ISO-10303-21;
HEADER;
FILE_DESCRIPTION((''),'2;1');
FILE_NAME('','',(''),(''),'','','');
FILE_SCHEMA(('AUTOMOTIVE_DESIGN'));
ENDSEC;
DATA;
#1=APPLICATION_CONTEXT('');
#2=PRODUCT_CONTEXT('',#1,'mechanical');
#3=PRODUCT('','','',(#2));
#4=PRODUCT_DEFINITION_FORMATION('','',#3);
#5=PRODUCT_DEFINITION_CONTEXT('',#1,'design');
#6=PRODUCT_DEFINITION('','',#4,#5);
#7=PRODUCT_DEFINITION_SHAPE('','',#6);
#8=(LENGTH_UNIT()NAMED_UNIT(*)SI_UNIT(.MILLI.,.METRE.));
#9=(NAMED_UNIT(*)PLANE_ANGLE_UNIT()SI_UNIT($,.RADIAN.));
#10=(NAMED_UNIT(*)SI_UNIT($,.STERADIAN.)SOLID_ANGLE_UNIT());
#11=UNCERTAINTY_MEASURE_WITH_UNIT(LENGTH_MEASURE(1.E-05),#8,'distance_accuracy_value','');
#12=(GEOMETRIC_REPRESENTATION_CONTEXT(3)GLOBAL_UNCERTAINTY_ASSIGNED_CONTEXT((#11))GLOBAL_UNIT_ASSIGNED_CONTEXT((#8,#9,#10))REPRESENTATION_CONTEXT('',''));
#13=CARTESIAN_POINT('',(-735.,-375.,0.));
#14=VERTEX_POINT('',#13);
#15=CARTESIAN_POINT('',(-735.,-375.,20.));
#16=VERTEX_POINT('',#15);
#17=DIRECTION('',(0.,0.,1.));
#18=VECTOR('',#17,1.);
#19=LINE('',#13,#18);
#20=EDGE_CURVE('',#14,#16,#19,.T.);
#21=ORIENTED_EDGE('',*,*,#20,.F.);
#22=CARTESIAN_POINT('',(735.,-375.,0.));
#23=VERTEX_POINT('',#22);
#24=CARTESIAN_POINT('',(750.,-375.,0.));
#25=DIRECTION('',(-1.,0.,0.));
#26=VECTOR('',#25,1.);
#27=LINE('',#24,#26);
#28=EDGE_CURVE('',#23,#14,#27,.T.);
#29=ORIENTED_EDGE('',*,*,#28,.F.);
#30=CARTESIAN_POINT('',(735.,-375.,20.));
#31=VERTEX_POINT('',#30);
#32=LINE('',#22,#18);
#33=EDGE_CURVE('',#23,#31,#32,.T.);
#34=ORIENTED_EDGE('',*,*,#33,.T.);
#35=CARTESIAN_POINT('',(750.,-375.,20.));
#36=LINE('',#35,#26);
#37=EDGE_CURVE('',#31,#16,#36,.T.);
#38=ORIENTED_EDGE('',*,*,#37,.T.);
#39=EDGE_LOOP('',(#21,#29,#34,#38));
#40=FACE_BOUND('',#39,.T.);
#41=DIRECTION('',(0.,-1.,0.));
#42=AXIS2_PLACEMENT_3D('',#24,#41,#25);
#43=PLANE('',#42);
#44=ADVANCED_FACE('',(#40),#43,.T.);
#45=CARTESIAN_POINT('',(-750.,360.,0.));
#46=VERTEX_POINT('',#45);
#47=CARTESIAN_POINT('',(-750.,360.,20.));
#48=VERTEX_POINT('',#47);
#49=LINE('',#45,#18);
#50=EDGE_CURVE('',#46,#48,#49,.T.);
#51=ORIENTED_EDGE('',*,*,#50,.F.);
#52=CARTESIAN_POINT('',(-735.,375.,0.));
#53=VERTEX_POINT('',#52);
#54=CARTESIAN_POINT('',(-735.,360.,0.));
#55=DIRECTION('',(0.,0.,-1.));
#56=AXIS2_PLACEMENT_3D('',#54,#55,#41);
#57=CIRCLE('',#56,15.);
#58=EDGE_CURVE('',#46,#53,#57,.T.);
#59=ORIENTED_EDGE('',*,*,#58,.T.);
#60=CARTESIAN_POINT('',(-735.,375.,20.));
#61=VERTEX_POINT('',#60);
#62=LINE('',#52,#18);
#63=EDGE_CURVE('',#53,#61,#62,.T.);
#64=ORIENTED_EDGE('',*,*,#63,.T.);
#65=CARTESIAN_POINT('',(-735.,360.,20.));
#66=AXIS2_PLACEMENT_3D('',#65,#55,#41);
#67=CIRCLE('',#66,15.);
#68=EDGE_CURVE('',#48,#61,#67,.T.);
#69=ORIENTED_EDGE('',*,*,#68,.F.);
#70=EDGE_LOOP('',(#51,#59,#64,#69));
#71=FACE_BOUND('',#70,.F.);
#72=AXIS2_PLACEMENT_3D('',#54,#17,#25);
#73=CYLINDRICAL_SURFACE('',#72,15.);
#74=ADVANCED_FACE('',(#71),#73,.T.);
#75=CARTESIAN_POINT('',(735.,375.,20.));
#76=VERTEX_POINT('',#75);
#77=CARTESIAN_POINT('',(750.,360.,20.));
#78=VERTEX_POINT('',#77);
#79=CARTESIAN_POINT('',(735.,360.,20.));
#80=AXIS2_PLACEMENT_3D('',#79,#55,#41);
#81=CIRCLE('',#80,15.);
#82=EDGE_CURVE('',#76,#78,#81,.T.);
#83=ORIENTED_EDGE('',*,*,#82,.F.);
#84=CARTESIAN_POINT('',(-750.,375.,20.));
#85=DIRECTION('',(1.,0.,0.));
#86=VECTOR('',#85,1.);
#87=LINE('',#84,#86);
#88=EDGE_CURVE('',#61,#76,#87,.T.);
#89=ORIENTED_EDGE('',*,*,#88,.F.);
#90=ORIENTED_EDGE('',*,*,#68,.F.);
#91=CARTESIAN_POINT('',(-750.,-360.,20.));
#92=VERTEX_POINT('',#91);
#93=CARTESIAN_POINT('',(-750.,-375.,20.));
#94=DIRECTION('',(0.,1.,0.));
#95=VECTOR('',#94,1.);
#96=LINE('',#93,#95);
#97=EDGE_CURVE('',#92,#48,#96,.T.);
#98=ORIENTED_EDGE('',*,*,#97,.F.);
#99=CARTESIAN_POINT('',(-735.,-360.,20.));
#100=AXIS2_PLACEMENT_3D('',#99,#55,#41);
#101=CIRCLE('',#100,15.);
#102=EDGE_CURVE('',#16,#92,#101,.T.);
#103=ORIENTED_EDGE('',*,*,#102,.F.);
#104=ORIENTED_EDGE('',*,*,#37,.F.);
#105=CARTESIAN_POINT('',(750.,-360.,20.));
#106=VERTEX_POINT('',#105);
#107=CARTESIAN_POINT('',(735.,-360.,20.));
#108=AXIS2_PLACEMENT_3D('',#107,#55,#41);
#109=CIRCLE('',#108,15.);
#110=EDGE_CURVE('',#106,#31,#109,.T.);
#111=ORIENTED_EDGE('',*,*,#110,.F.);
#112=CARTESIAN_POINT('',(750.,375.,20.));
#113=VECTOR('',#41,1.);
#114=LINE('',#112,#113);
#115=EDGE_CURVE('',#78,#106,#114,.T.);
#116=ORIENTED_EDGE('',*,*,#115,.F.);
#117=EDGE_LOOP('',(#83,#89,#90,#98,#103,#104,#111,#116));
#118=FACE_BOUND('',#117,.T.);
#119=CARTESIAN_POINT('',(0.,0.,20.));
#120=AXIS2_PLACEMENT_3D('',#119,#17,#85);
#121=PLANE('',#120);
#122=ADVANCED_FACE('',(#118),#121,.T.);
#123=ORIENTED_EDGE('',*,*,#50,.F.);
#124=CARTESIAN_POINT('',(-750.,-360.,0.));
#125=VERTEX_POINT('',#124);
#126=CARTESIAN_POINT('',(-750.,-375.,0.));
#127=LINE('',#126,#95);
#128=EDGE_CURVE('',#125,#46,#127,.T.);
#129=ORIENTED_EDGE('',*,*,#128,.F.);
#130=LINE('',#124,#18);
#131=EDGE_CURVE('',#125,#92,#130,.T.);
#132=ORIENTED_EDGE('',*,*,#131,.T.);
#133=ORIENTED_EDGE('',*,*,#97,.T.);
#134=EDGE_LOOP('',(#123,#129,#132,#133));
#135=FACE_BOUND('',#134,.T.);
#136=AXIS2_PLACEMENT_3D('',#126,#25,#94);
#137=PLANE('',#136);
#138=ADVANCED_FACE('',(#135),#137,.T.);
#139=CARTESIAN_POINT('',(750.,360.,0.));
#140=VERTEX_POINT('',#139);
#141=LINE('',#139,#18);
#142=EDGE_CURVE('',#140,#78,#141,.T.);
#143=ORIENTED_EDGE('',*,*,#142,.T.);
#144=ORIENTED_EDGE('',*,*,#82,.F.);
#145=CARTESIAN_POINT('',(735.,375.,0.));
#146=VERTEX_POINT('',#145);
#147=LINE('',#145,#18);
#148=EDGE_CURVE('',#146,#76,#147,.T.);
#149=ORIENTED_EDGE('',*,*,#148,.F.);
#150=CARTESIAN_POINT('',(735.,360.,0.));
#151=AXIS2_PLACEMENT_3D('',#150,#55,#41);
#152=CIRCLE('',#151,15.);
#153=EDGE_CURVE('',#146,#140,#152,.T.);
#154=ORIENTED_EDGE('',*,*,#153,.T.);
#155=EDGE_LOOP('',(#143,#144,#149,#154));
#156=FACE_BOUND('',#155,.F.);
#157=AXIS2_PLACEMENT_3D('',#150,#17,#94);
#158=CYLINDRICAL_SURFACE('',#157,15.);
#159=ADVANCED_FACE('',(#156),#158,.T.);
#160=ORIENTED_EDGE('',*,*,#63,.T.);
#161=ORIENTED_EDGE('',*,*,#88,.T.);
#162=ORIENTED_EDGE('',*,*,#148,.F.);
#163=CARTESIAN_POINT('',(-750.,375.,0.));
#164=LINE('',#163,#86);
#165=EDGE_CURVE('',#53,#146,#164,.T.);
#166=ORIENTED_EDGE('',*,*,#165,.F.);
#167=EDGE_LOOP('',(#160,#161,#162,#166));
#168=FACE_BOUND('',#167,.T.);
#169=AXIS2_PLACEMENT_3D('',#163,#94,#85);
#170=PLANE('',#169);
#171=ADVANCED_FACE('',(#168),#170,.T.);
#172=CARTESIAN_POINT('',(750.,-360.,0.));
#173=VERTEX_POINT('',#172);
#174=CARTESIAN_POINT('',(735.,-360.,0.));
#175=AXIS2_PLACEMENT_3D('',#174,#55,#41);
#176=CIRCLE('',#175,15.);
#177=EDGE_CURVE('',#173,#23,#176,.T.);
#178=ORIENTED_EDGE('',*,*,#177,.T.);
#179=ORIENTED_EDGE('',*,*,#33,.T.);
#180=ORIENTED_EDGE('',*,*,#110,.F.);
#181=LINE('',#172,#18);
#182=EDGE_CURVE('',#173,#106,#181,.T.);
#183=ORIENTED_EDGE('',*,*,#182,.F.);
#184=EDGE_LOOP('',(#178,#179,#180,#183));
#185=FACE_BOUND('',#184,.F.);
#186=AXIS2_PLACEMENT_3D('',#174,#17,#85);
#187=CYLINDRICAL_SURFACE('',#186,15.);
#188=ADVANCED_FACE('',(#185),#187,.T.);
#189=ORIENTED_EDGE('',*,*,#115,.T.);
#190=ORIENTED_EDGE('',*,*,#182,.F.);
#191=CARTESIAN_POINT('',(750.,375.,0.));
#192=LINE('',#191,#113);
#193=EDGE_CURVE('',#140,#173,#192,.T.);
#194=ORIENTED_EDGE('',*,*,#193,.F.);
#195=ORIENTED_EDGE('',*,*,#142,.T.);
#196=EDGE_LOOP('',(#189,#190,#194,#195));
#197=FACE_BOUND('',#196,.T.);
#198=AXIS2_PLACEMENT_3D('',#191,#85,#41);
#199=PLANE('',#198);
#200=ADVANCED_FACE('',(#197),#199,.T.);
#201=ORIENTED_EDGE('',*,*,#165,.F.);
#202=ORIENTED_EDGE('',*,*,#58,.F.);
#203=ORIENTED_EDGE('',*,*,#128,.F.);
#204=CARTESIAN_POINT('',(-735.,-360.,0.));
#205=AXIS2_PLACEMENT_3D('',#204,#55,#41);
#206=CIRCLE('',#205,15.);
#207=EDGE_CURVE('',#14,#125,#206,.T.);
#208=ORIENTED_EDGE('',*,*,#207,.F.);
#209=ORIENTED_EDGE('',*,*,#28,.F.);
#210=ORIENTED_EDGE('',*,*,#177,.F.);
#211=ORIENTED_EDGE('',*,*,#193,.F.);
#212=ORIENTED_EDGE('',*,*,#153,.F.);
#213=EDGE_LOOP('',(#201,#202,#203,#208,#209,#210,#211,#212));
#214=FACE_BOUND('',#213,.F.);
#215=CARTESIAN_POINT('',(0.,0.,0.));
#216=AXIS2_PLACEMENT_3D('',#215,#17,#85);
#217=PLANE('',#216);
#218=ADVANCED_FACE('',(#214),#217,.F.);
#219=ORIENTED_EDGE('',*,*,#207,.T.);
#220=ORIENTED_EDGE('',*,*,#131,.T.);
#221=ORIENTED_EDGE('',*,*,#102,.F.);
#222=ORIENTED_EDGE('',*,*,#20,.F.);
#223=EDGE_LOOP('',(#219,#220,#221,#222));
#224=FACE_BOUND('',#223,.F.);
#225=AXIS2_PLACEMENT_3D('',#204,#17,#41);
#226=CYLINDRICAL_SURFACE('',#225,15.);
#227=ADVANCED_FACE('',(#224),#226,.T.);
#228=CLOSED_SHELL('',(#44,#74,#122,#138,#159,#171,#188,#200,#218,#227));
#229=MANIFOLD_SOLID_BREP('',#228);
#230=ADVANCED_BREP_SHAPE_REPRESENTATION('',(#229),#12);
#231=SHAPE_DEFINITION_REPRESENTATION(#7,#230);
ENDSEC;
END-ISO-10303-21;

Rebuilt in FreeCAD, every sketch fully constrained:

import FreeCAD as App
import Part
import Sketcher


def edges_at(feature, points):
    """Names of the edges that pass closest to the given points."""
    edges = feature.Shape.Edges
    near = lambda p: min(range(len(edges)), key=lambda i: edges[i].distToShape(Part.Vertex(*p))[0])
    return sorted({f"Edge{near(p) + 1}" for p in points})


def add_polygon(sketch, points):
    """Adds a closed chain of lines whose ends are joined by coincident constraints."""
    first, n = sketch.GeometryCount, len(points)
    for a, b in zip(points, points[1:] + points[:1]):
        sketch.addGeometry(Part.LineSegment(App.Vector(*a, 0), App.Vector(*b, 0)), False)
    for i in range(n):
        sketch.addConstraint(Sketcher.Constraint("Coincident", first + i, 2, first + (i + 1) % n, 1))

doc = App.newDocument("Part")
body = doc.addObject("PartDesign::Body", "Body")

sketch1 = body.newObject("Sketcher::SketchObject", "Sketch")
sketch1.AttachmentSupport = (doc.getObject("XY_Plane"), [""])
sketch1.MapMode = "FlatFace"
add_polygon(sketch1, [(-750, -375), (750, -375), (750, 375), (-750, 375)])
sketch1.addConstraint([
    Sketcher.Constraint("Horizontal", 0),
    Sketcher.Constraint("Vertical", 1),
    Sketcher.Constraint("Horizontal", 2),
    Sketcher.Constraint("Vertical", 3),
    Sketcher.Constraint("Symmetric", 0, 2, 2, 2, -1, 1),
    Sketcher.Constraint("DistanceX", 0, 1, 0, 2, 1500.0),
    Sketcher.Constraint("DistanceY", 1, 1, 1, 2, 750.0),
])
pad1 = body.newObject("PartDesign::Pad", "Pad")
pad1.Profile = sketch1
pad1.Length = 20
doc.recompute()

fillet = body.newObject("PartDesign::Fillet", "Fillet")
fillet.Base = (pad1, edges_at(pad1, [(-750, 375, 10)]))
fillet.Radius = 15
doc.recompute()

fillet2 = body.newObject("PartDesign::Fillet", "Fillet001")
fillet2.Base = (fillet, edges_at(fillet, [(750, 375, 10)]))
fillet2.Radius = 15
doc.recompute()

fillet3 = body.newObject("PartDesign::Fillet", "Fillet002")
fillet3.Base = (fillet2, edges_at(fillet2, [(750, -375, 10)]))
fillet3.Radius = 15
doc.recompute()

fillet4 = body.newObject("PartDesign::Fillet", "Fillet003")
fillet4.Base = (fillet3, edges_at(fillet3, [(-750, -375, 10)]))
fillet4.Radius = 15

doc.recompute()
